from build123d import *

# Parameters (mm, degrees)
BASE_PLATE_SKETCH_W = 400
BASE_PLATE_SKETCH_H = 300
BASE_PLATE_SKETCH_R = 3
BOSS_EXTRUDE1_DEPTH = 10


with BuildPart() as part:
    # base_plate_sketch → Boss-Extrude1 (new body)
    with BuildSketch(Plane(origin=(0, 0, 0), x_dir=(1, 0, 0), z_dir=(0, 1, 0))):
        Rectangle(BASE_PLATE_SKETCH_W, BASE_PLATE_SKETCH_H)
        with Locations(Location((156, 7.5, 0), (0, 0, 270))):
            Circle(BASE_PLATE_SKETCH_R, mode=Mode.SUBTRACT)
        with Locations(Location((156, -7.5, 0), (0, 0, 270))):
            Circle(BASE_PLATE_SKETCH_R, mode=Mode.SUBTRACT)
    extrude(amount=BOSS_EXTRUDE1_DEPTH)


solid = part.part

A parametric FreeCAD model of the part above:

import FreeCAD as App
import Part
import Sketcher

V = App.Vector
Q = App.Units.Quantity

doc = App.newDocument("Part")
params = doc.addObject("Spreadsheet::Sheet", "Params")
for row, (alias, value) in enumerate([
    ("sketch1_diameter", "6 mm"),
    ("sketch1_width", "400 mm"),
    ("sketch1_height", "300 mm"),
    ("pad1_length", "10 mm"),
], start=1):
    params.set(f"A{row}", alias)
    params.set(f"B{row}", "=" + value)
    params.setAlias(f"B{row}", alias)

body = doc.addObject("PartDesign::Body", "Body")

# Sketch on XZ plane
sketch1 = body.newObject("Sketcher::SketchObject", "Sketch")
sketch1.AttachmentSupport = (doc.getObject("XZ_Plane"), [""])
sketch1.MapMode = "FlatFace"
sketch1.addGeometry([
    Part.LineSegment(V(-200, -150, 0), V(-200, 150, 0)),  # 0
    Part.LineSegment(V(-200, 150, 0), V(200, 150, 0)),  # 1
    Part.LineSegment(V(200, 150, 0), V(200, -150, 0)),  # 2
    Part.LineSegment(V(200, -150, 0), V(-200, -150, 0)),  # 3
    Part.Circle(V(156, 7.5, 0), V(0, 0, 1), 3),  # 4
    Part.Circle(V(156, -7.5, 0), V(0, 0, 1), 3),  # 5
], False)
sketch1.addConstraint([
    Sketcher.Constraint("Coincident", 0, 2, 1, 1),
    Sketcher.Constraint("Coincident", 1, 2, 2, 1),
    Sketcher.Constraint("Coincident", 2, 2, 3, 1),
    Sketcher.Constraint("Coincident", 3, 2, 0, 1),
    Sketcher.Constraint("Vertical", 0),
    Sketcher.Constraint("Horizontal", 1),
    Sketcher.Constraint("Vertical", 2),
    Sketcher.Constraint("Horizontal", 3),
    Sketcher.Constraint("Equal", 4, 5),
    Sketcher.Constraint("Symmetric", 0, 2, 2, 2, -1, 1),
    Sketcher.Constraint("Symmetric", 4, 3, 5, 3, -1),
    Sketcher.Constraint("Diameter", 4, Q("6 mm")),
    Sketcher.Constraint("DistanceX", 1, 1, 1, 2, Q("400 mm")),
    Sketcher.Constraint("DistanceY", 0, 1, 0, 2, Q("300 mm")),
    Sketcher.Constraint("DistanceX", -1, 1, 4, 3, Q("156 mm")),
    Sketcher.Constraint("DistanceY", 5, 3, 4, 3, Q("15 mm")),
])
sketch1.setExpression("Constraints[11]", "Params.sketch1_diameter")
sketch1.setExpression("Constraints[12]", "Params.sketch1_width")
sketch1.setExpression("Constraints[13]", "Params.sketch1_height")
pad1 = body.newObject("PartDesign::Pad", "Pad")
pad1.Profile = sketch1
pad1.setExpression("Length", "Params.pad1_length")
pad1.Reversed = True

doc.recompute()
